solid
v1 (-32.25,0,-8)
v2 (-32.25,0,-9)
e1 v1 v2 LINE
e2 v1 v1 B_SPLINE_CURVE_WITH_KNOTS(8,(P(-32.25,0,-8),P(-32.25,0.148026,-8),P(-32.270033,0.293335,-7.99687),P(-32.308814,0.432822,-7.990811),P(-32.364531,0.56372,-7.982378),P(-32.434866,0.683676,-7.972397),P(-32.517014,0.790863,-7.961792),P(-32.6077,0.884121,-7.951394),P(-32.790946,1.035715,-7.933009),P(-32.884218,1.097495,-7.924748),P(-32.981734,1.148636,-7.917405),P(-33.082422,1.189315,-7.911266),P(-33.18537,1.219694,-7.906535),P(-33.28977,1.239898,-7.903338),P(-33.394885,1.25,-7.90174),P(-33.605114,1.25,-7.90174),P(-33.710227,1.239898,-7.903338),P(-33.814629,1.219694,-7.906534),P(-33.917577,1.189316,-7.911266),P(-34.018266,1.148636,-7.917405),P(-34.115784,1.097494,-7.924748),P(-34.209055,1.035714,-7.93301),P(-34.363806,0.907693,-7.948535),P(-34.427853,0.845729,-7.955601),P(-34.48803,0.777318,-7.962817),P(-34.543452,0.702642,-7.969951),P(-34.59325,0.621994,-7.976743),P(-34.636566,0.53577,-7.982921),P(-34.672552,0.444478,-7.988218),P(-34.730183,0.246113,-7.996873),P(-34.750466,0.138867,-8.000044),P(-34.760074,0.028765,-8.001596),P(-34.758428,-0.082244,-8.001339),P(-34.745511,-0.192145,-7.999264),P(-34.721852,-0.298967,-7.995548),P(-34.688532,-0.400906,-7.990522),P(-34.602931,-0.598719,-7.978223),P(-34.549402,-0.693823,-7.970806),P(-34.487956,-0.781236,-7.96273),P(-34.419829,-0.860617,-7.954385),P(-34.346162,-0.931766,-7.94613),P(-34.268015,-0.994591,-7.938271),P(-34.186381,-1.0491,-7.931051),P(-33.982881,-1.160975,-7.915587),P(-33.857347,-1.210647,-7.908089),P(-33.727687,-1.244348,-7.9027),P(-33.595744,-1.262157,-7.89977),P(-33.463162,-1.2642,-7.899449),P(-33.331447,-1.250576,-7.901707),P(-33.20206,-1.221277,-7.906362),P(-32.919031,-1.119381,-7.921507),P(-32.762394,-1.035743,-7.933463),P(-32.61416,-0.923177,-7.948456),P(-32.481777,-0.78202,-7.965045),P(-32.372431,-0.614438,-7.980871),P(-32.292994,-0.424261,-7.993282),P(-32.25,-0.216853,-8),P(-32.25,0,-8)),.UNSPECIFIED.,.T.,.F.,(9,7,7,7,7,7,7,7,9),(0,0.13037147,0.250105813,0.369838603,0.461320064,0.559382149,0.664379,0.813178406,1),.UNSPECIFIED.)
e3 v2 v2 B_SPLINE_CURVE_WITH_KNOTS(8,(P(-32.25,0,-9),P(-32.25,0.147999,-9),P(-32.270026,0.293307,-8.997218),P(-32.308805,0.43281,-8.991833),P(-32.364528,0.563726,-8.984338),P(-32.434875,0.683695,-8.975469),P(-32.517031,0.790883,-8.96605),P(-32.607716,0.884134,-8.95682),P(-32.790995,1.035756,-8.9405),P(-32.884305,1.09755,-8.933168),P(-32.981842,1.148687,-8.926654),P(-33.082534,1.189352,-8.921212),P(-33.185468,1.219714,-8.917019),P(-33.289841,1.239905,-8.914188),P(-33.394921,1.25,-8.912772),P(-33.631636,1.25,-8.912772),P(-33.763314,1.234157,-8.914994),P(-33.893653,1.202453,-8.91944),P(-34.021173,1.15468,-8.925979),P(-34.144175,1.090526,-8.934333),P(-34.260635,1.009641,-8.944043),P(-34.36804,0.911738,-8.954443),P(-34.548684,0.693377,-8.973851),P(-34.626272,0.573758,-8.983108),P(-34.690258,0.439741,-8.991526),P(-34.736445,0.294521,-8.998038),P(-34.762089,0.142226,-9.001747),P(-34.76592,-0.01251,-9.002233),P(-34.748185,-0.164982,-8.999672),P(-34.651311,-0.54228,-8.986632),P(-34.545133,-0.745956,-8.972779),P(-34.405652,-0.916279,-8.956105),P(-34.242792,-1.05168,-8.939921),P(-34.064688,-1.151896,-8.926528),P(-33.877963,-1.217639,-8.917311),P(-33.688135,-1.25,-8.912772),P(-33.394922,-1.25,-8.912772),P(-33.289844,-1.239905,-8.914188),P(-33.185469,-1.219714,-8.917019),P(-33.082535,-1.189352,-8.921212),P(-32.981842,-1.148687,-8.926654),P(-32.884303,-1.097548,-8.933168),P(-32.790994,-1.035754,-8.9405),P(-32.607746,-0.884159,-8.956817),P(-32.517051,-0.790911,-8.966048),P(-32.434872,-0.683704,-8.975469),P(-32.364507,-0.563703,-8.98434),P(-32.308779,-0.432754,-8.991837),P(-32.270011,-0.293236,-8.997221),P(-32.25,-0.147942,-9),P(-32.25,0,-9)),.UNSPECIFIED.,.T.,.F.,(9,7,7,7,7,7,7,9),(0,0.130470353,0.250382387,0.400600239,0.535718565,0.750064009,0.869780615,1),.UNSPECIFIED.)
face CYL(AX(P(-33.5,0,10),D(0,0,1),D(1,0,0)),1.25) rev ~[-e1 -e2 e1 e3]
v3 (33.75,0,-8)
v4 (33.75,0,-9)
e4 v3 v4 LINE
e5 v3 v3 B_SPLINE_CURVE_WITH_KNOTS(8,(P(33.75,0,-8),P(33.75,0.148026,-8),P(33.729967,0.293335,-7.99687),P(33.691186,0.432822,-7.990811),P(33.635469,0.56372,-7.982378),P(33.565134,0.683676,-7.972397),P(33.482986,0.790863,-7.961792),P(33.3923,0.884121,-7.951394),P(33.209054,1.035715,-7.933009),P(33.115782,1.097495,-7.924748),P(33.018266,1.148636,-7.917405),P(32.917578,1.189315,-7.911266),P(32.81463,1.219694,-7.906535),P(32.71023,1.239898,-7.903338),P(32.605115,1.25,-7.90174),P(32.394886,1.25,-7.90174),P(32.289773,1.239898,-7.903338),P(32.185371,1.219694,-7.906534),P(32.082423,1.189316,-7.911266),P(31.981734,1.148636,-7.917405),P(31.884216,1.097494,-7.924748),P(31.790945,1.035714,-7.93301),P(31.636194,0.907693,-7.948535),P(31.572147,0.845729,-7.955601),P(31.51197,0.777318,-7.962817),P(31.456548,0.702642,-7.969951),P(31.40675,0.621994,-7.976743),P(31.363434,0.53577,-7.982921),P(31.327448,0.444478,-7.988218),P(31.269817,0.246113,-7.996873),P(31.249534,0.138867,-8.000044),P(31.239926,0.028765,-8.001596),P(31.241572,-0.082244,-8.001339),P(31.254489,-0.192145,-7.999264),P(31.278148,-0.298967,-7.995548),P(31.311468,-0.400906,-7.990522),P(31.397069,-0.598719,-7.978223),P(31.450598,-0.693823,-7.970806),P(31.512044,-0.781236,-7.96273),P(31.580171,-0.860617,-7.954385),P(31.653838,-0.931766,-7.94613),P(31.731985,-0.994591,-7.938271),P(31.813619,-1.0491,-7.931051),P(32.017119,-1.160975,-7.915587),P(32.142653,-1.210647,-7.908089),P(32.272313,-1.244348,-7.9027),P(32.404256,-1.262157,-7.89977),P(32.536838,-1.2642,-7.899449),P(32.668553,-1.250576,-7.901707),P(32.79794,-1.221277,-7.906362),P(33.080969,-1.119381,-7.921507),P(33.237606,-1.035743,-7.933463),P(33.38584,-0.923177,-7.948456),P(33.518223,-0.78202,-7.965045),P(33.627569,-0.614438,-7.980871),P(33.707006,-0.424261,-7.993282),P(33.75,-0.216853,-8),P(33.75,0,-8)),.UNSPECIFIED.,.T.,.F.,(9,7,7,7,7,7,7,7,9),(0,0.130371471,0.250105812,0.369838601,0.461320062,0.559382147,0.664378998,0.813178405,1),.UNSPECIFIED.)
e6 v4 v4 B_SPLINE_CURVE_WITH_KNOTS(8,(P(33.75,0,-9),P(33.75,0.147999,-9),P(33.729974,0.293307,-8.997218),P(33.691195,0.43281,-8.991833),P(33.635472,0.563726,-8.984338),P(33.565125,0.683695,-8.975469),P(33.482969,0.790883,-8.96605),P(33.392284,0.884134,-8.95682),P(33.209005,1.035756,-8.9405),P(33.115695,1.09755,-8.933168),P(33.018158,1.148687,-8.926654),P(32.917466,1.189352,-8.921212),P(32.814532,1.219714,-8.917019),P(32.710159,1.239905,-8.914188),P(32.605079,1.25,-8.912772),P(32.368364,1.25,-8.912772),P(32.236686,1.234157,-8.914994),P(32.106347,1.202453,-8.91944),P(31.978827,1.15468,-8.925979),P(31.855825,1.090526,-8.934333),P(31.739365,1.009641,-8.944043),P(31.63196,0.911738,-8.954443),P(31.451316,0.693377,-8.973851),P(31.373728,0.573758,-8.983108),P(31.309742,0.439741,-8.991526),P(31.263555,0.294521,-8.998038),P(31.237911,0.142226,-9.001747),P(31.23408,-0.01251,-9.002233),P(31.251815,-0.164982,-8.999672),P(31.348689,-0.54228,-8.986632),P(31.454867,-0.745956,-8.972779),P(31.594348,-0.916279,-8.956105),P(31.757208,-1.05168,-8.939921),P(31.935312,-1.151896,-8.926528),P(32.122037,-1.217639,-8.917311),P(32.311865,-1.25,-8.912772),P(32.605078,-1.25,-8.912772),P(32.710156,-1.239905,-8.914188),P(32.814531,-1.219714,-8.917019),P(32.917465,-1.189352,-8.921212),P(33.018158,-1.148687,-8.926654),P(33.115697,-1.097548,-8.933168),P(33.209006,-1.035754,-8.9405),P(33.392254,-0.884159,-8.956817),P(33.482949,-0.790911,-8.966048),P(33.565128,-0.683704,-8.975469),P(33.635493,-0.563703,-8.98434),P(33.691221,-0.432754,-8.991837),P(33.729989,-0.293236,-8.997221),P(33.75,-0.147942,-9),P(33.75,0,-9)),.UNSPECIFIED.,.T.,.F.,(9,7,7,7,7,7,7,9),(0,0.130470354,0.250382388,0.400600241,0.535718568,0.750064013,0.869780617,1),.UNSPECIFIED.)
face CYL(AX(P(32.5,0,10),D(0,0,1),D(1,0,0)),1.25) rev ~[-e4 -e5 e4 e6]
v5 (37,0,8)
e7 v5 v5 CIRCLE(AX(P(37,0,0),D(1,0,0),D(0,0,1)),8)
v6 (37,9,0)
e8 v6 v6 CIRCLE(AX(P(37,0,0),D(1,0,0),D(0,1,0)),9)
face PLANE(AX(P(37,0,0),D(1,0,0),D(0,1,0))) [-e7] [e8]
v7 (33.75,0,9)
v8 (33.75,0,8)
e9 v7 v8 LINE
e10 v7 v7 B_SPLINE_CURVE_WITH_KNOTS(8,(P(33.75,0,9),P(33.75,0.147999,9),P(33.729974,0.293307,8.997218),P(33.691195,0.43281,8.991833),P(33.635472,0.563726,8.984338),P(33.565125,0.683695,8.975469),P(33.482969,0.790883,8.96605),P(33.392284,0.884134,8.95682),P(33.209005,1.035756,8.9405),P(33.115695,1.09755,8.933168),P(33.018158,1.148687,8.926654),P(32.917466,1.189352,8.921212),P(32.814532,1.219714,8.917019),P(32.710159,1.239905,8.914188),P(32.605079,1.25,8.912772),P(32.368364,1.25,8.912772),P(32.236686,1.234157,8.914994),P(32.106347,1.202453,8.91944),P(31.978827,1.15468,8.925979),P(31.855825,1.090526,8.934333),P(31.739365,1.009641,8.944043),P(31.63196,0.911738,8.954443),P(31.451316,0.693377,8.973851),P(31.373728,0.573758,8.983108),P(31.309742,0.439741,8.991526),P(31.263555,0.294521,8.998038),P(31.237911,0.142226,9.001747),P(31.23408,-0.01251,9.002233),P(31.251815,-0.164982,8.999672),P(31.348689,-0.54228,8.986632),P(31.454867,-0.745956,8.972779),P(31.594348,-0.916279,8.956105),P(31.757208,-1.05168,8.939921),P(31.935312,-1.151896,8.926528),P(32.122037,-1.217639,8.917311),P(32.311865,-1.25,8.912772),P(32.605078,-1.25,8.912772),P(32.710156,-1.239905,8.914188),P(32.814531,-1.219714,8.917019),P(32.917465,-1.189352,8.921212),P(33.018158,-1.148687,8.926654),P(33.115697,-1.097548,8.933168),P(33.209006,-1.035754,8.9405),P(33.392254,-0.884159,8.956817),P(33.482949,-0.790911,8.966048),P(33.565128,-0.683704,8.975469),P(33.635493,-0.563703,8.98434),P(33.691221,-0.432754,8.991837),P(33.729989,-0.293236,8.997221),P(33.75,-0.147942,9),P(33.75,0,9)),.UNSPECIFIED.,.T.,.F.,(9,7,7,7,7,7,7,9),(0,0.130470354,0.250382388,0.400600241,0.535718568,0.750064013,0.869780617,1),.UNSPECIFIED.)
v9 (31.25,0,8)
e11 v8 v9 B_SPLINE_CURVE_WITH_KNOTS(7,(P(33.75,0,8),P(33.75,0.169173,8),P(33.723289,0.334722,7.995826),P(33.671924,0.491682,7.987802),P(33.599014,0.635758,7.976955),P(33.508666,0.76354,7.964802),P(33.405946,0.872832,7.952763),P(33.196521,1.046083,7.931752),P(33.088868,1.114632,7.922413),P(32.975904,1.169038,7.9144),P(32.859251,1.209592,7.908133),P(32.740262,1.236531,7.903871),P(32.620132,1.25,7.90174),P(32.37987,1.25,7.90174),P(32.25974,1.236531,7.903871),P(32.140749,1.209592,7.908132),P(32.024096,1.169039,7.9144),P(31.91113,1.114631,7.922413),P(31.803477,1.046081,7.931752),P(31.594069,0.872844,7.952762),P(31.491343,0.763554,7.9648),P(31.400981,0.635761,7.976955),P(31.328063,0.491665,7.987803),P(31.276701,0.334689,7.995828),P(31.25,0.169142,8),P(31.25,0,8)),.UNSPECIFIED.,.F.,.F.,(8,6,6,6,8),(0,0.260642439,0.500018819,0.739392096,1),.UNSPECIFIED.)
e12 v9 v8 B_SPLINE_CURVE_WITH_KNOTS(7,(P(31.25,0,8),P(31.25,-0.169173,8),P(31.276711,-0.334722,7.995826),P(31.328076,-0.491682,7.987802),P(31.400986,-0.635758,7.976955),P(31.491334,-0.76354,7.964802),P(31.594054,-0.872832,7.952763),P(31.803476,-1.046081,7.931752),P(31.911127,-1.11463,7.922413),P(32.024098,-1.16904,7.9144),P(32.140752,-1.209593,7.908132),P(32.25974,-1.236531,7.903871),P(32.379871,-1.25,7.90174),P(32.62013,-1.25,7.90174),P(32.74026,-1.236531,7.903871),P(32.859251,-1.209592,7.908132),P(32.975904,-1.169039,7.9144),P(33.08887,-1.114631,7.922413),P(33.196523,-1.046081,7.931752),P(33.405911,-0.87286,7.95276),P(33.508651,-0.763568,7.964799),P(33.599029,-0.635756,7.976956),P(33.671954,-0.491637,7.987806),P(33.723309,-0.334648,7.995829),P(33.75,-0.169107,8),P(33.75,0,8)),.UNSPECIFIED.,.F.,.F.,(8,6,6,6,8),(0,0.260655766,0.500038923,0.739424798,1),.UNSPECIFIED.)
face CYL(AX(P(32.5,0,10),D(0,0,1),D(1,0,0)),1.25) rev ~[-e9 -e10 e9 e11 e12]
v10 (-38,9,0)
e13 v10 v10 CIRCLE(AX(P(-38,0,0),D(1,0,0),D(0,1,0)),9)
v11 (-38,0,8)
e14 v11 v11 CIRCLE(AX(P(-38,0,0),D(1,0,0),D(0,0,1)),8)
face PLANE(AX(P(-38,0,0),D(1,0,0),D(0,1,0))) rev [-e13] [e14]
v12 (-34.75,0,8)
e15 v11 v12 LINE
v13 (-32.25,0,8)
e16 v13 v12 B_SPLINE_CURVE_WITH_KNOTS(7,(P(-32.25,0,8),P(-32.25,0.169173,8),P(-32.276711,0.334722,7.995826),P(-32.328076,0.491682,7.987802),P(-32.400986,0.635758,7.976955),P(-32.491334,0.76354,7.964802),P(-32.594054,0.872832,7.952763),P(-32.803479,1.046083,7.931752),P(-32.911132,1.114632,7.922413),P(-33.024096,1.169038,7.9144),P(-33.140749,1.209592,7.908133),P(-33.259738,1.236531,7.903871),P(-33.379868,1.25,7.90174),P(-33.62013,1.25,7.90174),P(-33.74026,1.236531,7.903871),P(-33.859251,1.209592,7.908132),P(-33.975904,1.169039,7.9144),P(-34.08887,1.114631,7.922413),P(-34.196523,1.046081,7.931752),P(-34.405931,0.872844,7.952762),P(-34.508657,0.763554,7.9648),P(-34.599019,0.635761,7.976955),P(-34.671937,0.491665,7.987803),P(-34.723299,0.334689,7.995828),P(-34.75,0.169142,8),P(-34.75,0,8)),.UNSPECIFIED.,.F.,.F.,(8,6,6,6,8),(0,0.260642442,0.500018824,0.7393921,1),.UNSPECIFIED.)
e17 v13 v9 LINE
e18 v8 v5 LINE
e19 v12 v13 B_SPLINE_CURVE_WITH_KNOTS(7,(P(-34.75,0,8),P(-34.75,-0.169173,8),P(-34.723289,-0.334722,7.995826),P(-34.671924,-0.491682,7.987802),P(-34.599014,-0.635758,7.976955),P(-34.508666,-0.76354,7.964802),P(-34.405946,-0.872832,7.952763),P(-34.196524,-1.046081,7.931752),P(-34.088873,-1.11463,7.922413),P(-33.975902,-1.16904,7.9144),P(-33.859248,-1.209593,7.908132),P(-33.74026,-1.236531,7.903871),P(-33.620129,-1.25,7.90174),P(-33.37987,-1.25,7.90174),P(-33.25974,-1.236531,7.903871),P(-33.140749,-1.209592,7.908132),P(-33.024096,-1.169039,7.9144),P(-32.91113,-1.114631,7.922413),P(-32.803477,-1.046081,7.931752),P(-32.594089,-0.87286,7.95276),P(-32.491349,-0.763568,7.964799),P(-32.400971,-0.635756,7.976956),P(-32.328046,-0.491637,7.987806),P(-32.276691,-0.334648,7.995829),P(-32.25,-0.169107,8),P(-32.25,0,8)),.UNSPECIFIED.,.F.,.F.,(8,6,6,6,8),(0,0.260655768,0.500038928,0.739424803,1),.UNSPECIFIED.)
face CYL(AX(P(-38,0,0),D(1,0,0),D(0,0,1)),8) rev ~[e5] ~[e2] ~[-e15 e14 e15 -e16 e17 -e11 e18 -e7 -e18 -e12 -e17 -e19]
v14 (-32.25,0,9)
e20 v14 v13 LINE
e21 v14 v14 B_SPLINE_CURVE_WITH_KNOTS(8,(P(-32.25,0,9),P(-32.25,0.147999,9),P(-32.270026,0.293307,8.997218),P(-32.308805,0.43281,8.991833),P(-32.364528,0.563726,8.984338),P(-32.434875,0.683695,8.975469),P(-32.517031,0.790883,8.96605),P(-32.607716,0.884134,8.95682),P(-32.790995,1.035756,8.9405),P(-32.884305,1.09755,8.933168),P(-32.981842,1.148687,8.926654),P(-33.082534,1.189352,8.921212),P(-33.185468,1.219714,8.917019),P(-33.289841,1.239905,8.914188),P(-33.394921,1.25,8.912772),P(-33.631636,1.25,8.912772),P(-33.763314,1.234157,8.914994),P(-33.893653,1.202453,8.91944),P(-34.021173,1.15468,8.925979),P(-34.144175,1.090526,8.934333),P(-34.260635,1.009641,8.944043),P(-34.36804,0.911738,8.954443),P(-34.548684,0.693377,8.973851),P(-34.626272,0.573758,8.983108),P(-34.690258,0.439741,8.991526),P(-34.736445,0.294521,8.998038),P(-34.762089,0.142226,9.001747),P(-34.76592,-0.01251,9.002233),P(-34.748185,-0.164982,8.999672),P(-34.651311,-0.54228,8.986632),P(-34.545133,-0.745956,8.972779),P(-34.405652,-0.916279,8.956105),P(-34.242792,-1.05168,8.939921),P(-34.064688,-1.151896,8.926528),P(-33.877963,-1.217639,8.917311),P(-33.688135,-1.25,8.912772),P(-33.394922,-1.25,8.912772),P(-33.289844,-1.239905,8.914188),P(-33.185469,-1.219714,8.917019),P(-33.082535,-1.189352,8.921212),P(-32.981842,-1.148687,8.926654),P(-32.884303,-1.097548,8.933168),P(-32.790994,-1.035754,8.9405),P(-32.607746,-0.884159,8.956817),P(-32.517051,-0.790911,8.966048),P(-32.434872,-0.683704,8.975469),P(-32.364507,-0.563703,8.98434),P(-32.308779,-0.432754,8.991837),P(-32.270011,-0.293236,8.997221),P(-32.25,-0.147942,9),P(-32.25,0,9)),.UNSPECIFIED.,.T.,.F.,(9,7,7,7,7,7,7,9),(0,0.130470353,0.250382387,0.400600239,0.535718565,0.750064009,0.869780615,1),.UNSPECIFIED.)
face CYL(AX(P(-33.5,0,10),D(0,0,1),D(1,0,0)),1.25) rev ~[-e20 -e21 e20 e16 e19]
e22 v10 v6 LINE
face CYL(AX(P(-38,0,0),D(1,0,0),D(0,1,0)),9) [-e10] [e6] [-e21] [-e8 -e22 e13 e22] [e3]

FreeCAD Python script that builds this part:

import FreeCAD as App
import Part
import Sketcher

V = App.Vector
Q = App.Units.Quantity

doc = App.newDocument("Part")
body = doc.addObject("PartDesign::Body", "Body")

# Sketch on XY plane
sketch1 = body.newObject("Sketcher::SketchObject", "Sketch")
sketch1.AttachmentSupport = (doc.getObject("XY_Plane"), [""])
sketch1.MapMode = "FlatFace"
sketch1.addGeometry([
    Part.LineSegment(V(37, 9, 0), V(-38, 9, 0)),
    Part.LineSegment(V(-38, 9, 0), V(-38, 0, 0)),
    Part.LineSegment(V(-38, 0, 0), V(37, 0, 0)),
    Part.LineSegment(V(37, 0, 0), V(37, 9, 0)),
], False)
sketch1.addConstraint([
    Sketcher.Constraint("Coincident", 0, 2, 1, 1),
    Sketcher.Constraint("Coincident", 1, 2, 2, 1),
    Sketcher.Constraint("Coincident", 2, 2, 3, 1),
    Sketcher.Constraint("Coincident", 3, 2, 0, 1),
    Sketcher.Constraint("Horizontal", 0),
    Sketcher.Constraint("Vertical", 1),
    Sketcher.Constraint("Horizontal", 2),
    Sketcher.Constraint("Vertical", 3),
    Sketcher.Constraint("PointOnObject", 1, 2, -1),
    Sketcher.Constraint("DistanceX", 0, 2, 0, 1, Q("75 mm")),
    Sketcher.Constraint("DistanceY", 1, 2, 1, 1, Q("9 mm")),
    Sketcher.Constraint("DistanceX", 0, 2, -1, 1, Q("38 mm")),
])
revolution = body.newObject("PartDesign::Revolution", "Revolution")
revolution.Profile = sketch1
revolution.ReferenceAxis = (sketch1, ["H_Axis"])
revolution.Angle = 360

# Sketch on YZ plane
sketch2 = body.newObject("Sketcher::SketchObject", "Sketch001")
sketch2.AttachmentSupport = (doc.getObject("YZ_Plane"), [""])
sketch2.MapMode = "FlatFace"
sketch2.AttachmentOffset = App.Placement(V(0, 0, -38), App.Rotation())
sketch2.addGeometry(Part.Circle(V(0, 0, 0), V(0, 0, 1), 8), False)
sketch2.addConstraint([
    Sketcher.Constraint("Coincident", 0, 3, -1, 1),
    Sketcher.Constraint("Diameter", 0, Q("16 mm")),
])
doc.recompute()
hole = body.newObject("PartDesign::Hole", "Hole")
hole.Profile = sketch2
hole.ThreadType = "None"
hole.Diameter = 16
hole.DepthType = "ThroughAll"
hole.Reversed = True

# Sketch on XY plane
sketch3 = body.newObject("Sketcher::SketchObject", "Sketch002")
sketch3.AttachmentSupport = (doc.getObject("XY_Plane"), [""])
sketch3.MapMode = "FlatFace"
sketch3.AttachmentOffset = App.Placement(V(0, 0, 10), App.Rotation())
sketch3.addGeometry([
    Part.Circle(V(-33.5, 0, 0), V(0, 0, 1), 1.25),
    Part.Circle(V(32.5, 0, 0), V(0, 0, 1), 1.25),
], False)
sketch3.addConstraint([
    Sketcher.Constraint("Equal", 0, 1),
    Sketcher.Constraint("PointOnObject", 0, 3, -1),
    Sketcher.Constraint("PointOnObject", 1, 3, -1),
    Sketcher.Constraint("Diameter", 0, Q("2.5 mm")),
    Sketcher.Constraint("DistanceX", 0, 3, 1, 3, Q("66 mm")),
    Sketcher.Constraint("DistanceX", 0, 3, -1, 1, Q("33.5 mm")),
])
pocket1 = body.newObject("PartDesign::Pocket", "Pocket")
pocket1.Profile = sketch3
pocket1.Type = "ThroughAll"

doc.recompute()
